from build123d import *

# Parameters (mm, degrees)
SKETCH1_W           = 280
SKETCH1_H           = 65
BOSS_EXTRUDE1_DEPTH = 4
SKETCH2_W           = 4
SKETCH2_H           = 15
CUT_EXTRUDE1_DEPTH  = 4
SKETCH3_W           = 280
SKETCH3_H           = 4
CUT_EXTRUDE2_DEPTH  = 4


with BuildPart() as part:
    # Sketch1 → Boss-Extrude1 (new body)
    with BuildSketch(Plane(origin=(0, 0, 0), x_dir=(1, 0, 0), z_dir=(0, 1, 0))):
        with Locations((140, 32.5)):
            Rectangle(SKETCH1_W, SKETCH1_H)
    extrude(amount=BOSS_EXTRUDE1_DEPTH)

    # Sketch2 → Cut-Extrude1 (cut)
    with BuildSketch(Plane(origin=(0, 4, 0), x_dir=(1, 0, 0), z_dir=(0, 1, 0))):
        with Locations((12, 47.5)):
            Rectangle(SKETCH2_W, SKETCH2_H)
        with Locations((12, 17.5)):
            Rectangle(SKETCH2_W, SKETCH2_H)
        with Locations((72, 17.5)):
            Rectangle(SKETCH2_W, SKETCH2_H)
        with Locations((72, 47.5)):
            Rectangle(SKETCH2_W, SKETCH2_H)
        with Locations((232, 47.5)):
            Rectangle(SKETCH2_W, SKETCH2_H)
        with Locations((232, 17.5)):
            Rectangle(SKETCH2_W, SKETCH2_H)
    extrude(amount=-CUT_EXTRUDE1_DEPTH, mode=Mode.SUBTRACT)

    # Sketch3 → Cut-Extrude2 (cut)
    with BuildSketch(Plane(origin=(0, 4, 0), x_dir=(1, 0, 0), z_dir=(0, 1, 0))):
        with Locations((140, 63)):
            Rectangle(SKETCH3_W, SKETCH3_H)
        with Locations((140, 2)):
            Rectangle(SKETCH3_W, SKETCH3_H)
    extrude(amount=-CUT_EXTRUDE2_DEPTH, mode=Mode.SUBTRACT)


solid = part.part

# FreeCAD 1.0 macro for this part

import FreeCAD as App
import Part
import Sketcher
from FreeCAD import Vector


def add_polygon(sketch, points):
    """Adds a closed chain of lines whose ends are joined by coincident constraints."""
    first, n = sketch.GeometryCount, len(points)
    for a, b in zip(points, points[1:] + points[:1]):
        sketch.addGeometry(Part.LineSegment(App.Vector(*a, 0), App.Vector(*b, 0)), False)
    for i in range(n):
        sketch.addConstraint(Sketcher.Constraint("Coincident", first + i, 2, first + (i + 1) % n, 1))

doc = App.newDocument("Part")
body = doc.addObject("PartDesign::Body", "Body")

# Sketch on XZ plane
sketch1 = body.newObject("Sketcher::SketchObject", "Sketch")
sketch1.AttachmentSupport = (doc.getObject("XZ_Plane"), [""])
sketch1.MapMode = "FlatFace"
add_polygon(sketch1, [(0, -65), (0, 0), (280, 0), (280, -65)])  # lines 0-3
sketch1.addConstraint(Sketcher.Constraint("Vertical", 0))
sketch1.addConstraint(Sketcher.Constraint("Horizontal", 1))
sketch1.addConstraint(Sketcher.Constraint("Vertical", 2))
sketch1.addConstraint(Sketcher.Constraint("Horizontal", 3))
sketch1.addConstraint(Sketcher.Constraint("Coincident", 0, 2, -1, 1))
sketch1.addConstraint(Sketcher.Constraint("DistanceX", 1, 1, 1, 2, 280.0))
sketch1.addConstraint(Sketcher.Constraint("DistanceY", 0, 1, 0, 2, 65.0))
pad1 = body.newObject("PartDesign::Pad", "Pad")
pad1.Profile = sketch1
pad1.Length = 4
pad1.Reversed = True

# Sketch on XZ plane
sketch2 = body.newObject("Sketcher::SketchObject", "Sketch001")
sketch2.AttachmentSupport = (doc.getObject("XZ_Plane"), [""])
sketch2.MapMode = "FlatFace"
sketch2.AttachmentOffset = App.Placement(Vector(0, 0, -4), App.Rotation())
add_polygon(sketch2, [(10, -55), (10, -40), (14, -40), (14, -55)])  # lines 0-3
add_polygon(sketch2, [(10, -25), (10, -10), (14, -10), (14, -25)])  # lines 4-7
add_polygon(sketch2, [(70, -25), (70, -10), (74, -10), (74, -25)])  # lines 8-11
add_polygon(sketch2, [(70, -55), (70, -40), (74, -40), (74, -55)])  # lines 12-15
add_polygon(sketch2, [(230, -55), (230, -40), (234, -40), (234, -55)])  # lines 16-19
add_polygon(sketch2, [(230, -25), (230, -10), (234, -10), (234, -25)])  # lines 20-23
sketch2.addConstraint(Sketcher.Constraint("Vertical", 0))
sketch2.addConstraint(Sketcher.Constraint("Horizontal", 1))
sketch2.addConstraint(Sketcher.Constraint("Vertical", 2))
sketch2.addConstraint(Sketcher.Constraint("Horizontal", 3))
sketch2.addConstraint(Sketcher.Constraint("Vertical", 4))
sketch2.addConstraint(Sketcher.Constraint("Horizontal", 5))
sketch2.addConstraint(Sketcher.Constraint("Vertical", 6))
sketch2.addConstraint(Sketcher.Constraint("Horizontal", 7))
sketch2.addConstraint(Sketcher.Constraint("Vertical", 8))
sketch2.addConstraint(Sketcher.Constraint("Horizontal", 9))
sketch2.addConstraint(Sketcher.Constraint("Vertical", 10))
sketch2.addConstraint(Sketcher.Constraint("Horizontal", 11))
sketch2.addConstraint(Sketcher.Constraint("Vertical", 12))
sketch2.addConstraint(Sketcher.Constraint("Horizontal", 13))
sketch2.addConstraint(Sketcher.Constraint("Vertical", 14))
sketch2.addConstraint(Sketcher.Constraint("Horizontal", 15))
sketch2.addConstraint(Sketcher.Constraint("Vertical", 16))
sketch2.addConstraint(Sketcher.Constraint("Horizontal", 17))
sketch2.addConstraint(Sketcher.Constraint("Vertical", 18))
sketch2.addConstraint(Sketcher.Constraint("Horizontal", 19))
sketch2.addConstraint(Sketcher.Constraint("Vertical", 20))
sketch2.addConstraint(Sketcher.Constraint("Horizontal", 21))
sketch2.addConstraint(Sketcher.Constraint("Vertical", 22))
sketch2.addConstraint(Sketcher.Constraint("Horizontal", 23))
sketch2.addConstraint(Sketcher.Constraint("Horizontal", 5, 2, 8, 2))
sketch2.addConstraint(Sketcher.Constraint("Horizontal", 7, 2, 10, 2))
sketch2.addConstraint(Sketcher.Constraint("Horizontal", 1, 2, 12, 2))
sketch2.addConstraint(Sketcher.Constraint("Horizontal", 3, 2, 14, 2))
sketch2.addConstraint(Sketcher.Constraint("Horizontal", 13, 2, 16, 2))
sketch2.addConstraint(Sketcher.Constraint("Horizontal", 15, 2, 18, 2))
sketch2.addConstraint(Sketcher.Constraint("Horizontal", 9, 2, 20, 2))
sketch2.addConstraint(Sketcher.Constraint("Horizontal", 11, 2, 22, 2))
sketch2.addConstraint(Sketcher.Constraint("Vertical", 3, 2, 4, 2))
sketch2.addConstraint(Sketcher.Constraint("Vertical", 2, 2, 5, 2))
sketch2.addConstraint(Sketcher.Constraint("Vertical", 11, 2, 12, 2))
sketch2.addConstraint(Sketcher.Constraint("Vertical", 10, 2, 13, 2))
sketch2.addConstraint(Sketcher.Constraint("Vertical", 19, 2, 20, 2))
sketch2.addConstraint(Sketcher.Constraint("Vertical", 18, 2, 21, 2))
sketch2.addConstraint(Sketcher.Constraint("Equal", 7, 9))
sketch2.addConstraint(Sketcher.Constraint("Equal", 15, 17))
sketch2.addConstraint(Sketcher.Constraint("Equal", 2, 4))
sketch2.addConstraint(Sketcher.Constraint("DistanceX", 1, 1, 1, 2, 4.0))
sketch2.addConstraint(Sketcher.Constraint("DistanceY", 0, 1, 0, 2, 15.0))
sketch2.addConstraint(Sketcher.Constraint("DistanceX", -1, 1, 0, 2, 10.0))
sketch2.addConstraint(Sketcher.Constraint("DistanceY", 0, 2, -1, 1, 40.0))
sketch2.addConstraint(Sketcher.Constraint("DistanceY", 4, 2, -1, 1, 10.0))
sketch2.addConstraint(Sketcher.Constraint("DistanceX", -1, 1, 8, 2, 70.0))
sketch2.addConstraint(Sketcher.Constraint("DistanceX", -1, 1, 16, 2, 230.0))
pocket1 = body.newObject("PartDesign::Pocket", "Pocket")
pocket1.Profile = sketch2
pocket1.Length = 4
pocket1.Reversed = True

# Sketch on XZ plane
sketch3 = body.newObject("Sketcher::SketchObject", "Sketch002")
sketch3.AttachmentSupport = (doc.getObject("XZ_Plane"), [""])
sketch3.MapMode = "FlatFace"
sketch3.AttachmentOffset = App.Placement(Vector(0, 0, -4), App.Rotation())
add_polygon(sketch3, [(0, -65), (0, -61), (280, -61), (280, -65)])  # lines 0-3
add_polygon(sketch3, [(0, -4), (0, 0), (280, 0), (280, -4)])  # lines 4-7
sketch3.addConstraint(Sketcher.Constraint("Vertical", 0))
sketch3.addConstraint(Sketcher.Constraint("Horizontal", 1))
sketch3.addConstraint(Sketcher.Constraint("Vertical", 2))
sketch3.addConstraint(Sketcher.Constraint("Horizontal", 3))
sketch3.addConstraint(Sketcher.Constraint("Vertical", 4))
sketch3.addConstraint(Sketcher.Constraint("Horizontal", 5))
sketch3.addConstraint(Sketcher.Constraint("Vertical", 6))
sketch3.addConstraint(Sketcher.Constraint("Horizontal", 7))
sketch3.addConstraint(Sketcher.Constraint("Coincident", 4, 2, -1, 1))
sketch3.addConstraint(Sketcher.Constraint("PointOnObject", 0, 2, -2))
sketch3.addConstraint(Sketcher.Constraint("Vertical", 2, 2, 5, 2))
sketch3.addConstraint(Sketcher.Constraint("Equal", 2, 4))
sketch3.addConstraint(Sketcher.Constraint("DistanceX", 1, 1, 1, 2, 280.0))
sketch3.addConstraint(Sketcher.Constraint("DistanceY", 0, 1, 0, 2, 4.0))
sketch3.addConstraint(Sketcher.Constraint("DistanceY", 0, 2, -1, 1, 61.0))
pocket2 = body.newObject("PartDesign::Pocket", "Pocket001")
pocket2.Profile = sketch3
pocket2.Length = 4
pocket2.Reversed = True

doc.recompute()
